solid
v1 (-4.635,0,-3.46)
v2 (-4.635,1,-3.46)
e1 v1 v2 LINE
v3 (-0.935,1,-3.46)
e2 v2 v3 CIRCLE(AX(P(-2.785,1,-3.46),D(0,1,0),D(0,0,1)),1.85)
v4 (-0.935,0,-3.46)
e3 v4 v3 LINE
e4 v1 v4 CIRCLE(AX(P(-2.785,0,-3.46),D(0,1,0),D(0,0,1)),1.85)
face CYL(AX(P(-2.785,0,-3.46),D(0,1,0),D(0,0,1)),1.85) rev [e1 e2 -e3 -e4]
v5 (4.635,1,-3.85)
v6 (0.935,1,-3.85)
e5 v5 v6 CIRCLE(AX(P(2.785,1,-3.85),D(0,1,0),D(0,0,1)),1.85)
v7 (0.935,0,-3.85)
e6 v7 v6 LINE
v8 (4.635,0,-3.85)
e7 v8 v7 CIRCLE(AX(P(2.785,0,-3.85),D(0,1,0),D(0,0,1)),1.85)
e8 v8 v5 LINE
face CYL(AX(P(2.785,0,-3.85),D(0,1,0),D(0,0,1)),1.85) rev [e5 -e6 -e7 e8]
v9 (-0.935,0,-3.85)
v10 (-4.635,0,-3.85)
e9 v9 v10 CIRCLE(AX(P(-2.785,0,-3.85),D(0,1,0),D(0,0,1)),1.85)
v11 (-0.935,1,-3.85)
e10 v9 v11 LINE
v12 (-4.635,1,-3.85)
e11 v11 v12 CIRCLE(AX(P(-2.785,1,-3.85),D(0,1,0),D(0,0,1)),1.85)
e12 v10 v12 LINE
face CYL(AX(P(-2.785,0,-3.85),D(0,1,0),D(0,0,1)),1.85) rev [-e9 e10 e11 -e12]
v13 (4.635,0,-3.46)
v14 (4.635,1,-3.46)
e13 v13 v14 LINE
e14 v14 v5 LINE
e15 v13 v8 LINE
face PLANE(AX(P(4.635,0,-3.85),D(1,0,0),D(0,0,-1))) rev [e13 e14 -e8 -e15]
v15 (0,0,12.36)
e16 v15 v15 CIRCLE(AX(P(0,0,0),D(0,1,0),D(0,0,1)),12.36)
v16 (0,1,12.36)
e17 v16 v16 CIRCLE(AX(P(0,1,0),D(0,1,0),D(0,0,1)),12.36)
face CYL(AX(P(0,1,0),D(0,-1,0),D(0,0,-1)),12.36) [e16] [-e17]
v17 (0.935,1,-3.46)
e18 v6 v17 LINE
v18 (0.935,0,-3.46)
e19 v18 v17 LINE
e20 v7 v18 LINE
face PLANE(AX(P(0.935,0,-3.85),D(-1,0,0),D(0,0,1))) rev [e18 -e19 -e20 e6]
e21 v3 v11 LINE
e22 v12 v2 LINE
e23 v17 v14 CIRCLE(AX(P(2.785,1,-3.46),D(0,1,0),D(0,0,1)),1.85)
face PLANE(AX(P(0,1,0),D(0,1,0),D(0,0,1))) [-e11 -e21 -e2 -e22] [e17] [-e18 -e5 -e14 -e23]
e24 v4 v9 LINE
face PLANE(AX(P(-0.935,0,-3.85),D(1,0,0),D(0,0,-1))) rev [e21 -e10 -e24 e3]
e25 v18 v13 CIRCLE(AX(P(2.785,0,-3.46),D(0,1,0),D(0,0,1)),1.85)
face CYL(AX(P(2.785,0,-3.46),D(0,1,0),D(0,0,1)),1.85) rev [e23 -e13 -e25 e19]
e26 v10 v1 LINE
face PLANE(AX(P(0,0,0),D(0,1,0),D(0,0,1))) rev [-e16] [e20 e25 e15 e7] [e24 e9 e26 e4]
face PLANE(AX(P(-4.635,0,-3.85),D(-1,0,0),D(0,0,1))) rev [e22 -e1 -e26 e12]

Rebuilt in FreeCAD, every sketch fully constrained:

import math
import FreeCAD as App
import Part
import Sketcher
from FreeCAD import Vector

doc = App.newDocument("Part")
body = doc.addObject("PartDesign::Body", "Body")

sketch1 = body.newObject("Sketcher::SketchObject", "Sketch")
sketch1.AttachmentSupport = (doc.getObject("XZ_Plane"), [""])
sketch1.MapMode = "FlatFace"
sketch1.addGeometry(Part.Circle(Vector(0, 0, 0), Vector(0, 0, 1), 12), False)
sketch1.addConstraint([
    Sketcher.Constraint("Coincident", 0, 3, -1, 1),
    Sketcher.Constraint("Diameter", 0, 24.72),
])
pad1 = body.newObject("PartDesign::Pad", "Pad")
pad1.Profile = sketch1
pad1.Length = 1
pad1.Reversed = True

sketch2 = body.newObject("Sketcher::SketchObject", "Sketch001")
sketch2.AttachmentSupport = (doc.getObject("XZ_Plane"), [""])
sketch2.MapMode = "FlatFace"
sketch2.AttachmentOffset = App.Placement(Vector(0, 0, -1), App.Rotation())
sketch2.addGeometry([
    Part.LineSegment(Vector(4.63, -3.46, 0), Vector(4.63, -3.85, 0)),
    Part.ArcOfCircle(Part.Circle(Vector(2.79, -3.85, 0), Vector(0, 0, 1), 1.85), math.radians(180), math.radians(360)),
    Part.LineSegment(Vector(0.94, -3.85, 0), Vector(0.94, -3.46, 0)),
    Part.ArcOfCircle(Part.Circle(Vector(2.79, -3.46, 0), Vector(0, 0, 1), 1.85), math.radians(0), math.radians(180)),
    Part.LineSegment(Vector(-0.94, -3.46, 0), Vector(-0.94, -3.85, 0)),
    Part.ArcOfCircle(Part.Circle(Vector(-2.79, -3.85, 0), Vector(0, 0, 1), 1.85), math.radians(180), math.radians(360)),
    Part.LineSegment(Vector(-4.63, -3.85, 0), Vector(-4.63, -3.46, 0)),
    Part.ArcOfCircle(Part.Circle(Vector(-2.79, -3.46, 0), Vector(0, 0, 1), 1.85), math.radians(0), math.radians(180)),
], False)
sketch2.addConstraint([
    Sketcher.Constraint("Tangent", 0, 2, 1, 2),
    Sketcher.Constraint("Tangent", 1, 1, 2, 1),
    Sketcher.Constraint("Tangent", 2, 2, 3, 2),
    Sketcher.Constraint("Tangent", 3, 1, 0, 1),
    Sketcher.Constraint("Tangent", 4, 2, 5, 2),
    Sketcher.Constraint("Tangent", 5, 1, 6, 1),
    Sketcher.Constraint("Tangent", 6, 2, 7, 2),
    Sketcher.Constraint("Tangent", 7, 1, 4, 1),
    Sketcher.Constraint("Vertical", 0),
    Sketcher.Constraint("Vertical", 2),
    Sketcher.Constraint("Vertical", 4),
    Sketcher.Constraint("Vertical", 6),
    Sketcher.Constraint("Equal", 3, 5),
    Sketcher.Constraint("Symmetric", 1, 3, 5, 3, -2),
    Sketcher.Constraint("Horizontal", 3, 3, 7, 3),
    Sketcher.Constraint("Radius", 1, 1.85),
    Sketcher.Constraint("DistanceY", 0, 2, 0, 1, 0.39),
    Sketcher.Constraint("DistanceY", 1, 3, -1, 1, 3.85),
    Sketcher.Constraint("DistanceX", 5, 3, 1, 3, 5.57),
])
pocket1 = body.newObject("PartDesign::Pocket", "Pocket")
pocket1.Profile = sketch2
pocket1.Type = "ThroughAll"
pocket1.Reversed = True

doc.recompute()
